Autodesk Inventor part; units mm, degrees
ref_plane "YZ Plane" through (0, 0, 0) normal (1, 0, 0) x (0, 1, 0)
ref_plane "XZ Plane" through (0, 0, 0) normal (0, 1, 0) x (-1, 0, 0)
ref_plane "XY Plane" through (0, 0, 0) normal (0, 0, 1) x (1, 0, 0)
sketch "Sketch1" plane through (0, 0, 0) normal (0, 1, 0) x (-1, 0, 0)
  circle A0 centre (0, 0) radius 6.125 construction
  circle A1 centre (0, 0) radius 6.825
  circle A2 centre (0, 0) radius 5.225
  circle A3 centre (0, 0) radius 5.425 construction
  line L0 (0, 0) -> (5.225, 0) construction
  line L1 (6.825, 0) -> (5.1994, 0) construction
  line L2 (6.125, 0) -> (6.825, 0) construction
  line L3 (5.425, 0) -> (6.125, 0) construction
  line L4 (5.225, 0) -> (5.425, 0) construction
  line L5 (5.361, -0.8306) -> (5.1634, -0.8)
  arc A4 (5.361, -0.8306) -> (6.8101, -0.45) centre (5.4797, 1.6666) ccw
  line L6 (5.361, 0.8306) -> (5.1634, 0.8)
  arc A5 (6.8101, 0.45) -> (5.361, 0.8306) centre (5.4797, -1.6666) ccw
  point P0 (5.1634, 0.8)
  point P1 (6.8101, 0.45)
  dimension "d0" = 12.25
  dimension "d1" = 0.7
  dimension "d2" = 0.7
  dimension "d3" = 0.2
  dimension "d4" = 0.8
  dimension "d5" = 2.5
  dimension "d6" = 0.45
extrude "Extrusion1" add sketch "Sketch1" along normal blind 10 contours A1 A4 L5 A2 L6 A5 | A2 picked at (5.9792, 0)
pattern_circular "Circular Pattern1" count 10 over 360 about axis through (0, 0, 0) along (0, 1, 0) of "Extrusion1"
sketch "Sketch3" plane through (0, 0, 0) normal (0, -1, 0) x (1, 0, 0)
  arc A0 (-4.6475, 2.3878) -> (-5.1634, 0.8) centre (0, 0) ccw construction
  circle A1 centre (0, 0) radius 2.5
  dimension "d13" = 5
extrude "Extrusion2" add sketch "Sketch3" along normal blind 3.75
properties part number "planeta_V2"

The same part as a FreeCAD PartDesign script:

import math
import FreeCAD as App
import Part
import Sketcher
from FreeCAD import Vector

doc = App.newDocument("Part")
body = doc.addObject("PartDesign::Body", "Body")

# Sketch on XZ plane
sketch1 = body.newObject("Sketcher::SketchObject", "Sketch")
sketch1.AttachmentSupport = (doc.getObject("XZ_Plane"), [""])
sketch1.MapMode = "FlatFace"
sketch1.addGeometry([
    Part.ArcOfCircle(Part.Circle(Vector(0, 0, 0), Vector(0, 0, 1), 6.83), math.radians(176.22), math.radians(183.78)),  # 0
    Part.ArcOfCircle(Part.Circle(Vector(-5.48, -1.67, 0), Vector(0, 0, 1), 2.5), math.radians(87), math.radians(122)),  # 1
    Part.LineSegment(Vector(-5.36, 0.83, 0), Vector(-5.16, 0.8, 0)),  # 2
    Part.ArcOfCircle(Part.Circle(Vector(0, 0, 0), Vector(0, 0, 1), 5.22), math.radians(-171), math.radians(171)),  # 3
    Part.LineSegment(Vector(-5.16, -0.8, 0), Vector(-5.36, -0.83, 0)),  # 4
    Part.ArcOfCircle(Part.Circle(Vector(-5.48, 1.67, 0), Vector(0, 0, 1), 2.5), math.radians(-122), math.radians(-87)),  # 5
], False)
sketch1.addConstraint([
    Sketcher.Constraint("Coincident", 0, 1, 1, 2),
    Sketcher.Constraint("Coincident", 1, 1, 2, 1),
    Sketcher.Constraint("Coincident", 2, 2, 3, 2),
    Sketcher.Constraint("Coincident", 3, 1, 4, 1),
    Sketcher.Constraint("Coincident", 4, 2, 5, 2),
    Sketcher.Constraint("Coincident", 5, 1, 0, 2),
    Sketcher.Constraint("Coincident", 0, 3, -1, 1),
    Sketcher.Constraint("Coincident", 3, 3, -1, 1),
    Sketcher.Constraint("Equal", 1, 5),
    Sketcher.Constraint("Symmetric", 1, 3, 5, 3, -1),
    Sketcher.Constraint("Vertical", 2, 2, 3, 1),
    Sketcher.Constraint("Vertical", 1, 1, 4, 2),
    Sketcher.Constraint("Radius", 1, 2.5),
    Sketcher.Constraint("Distance", 2, 0.2),
    Sketcher.Constraint("DistanceY", -1, 1, 2, 2, 0.8),
    Sketcher.Constraint("DistanceY", -1, 1, 0, 1, 0.45),
    Sketcher.Constraint("Radius", 0, 6.825),
    Sketcher.Constraint("Radius", 3, 5.225),
    Sketcher.Constraint("DistanceX", 1, 1, -1, 1, 5.361),
])
pad1 = body.newObject("PartDesign::Pad", "Pad")
pad1.Profile = sketch1
pad1.Length = 10
pad1.Reversed = True
doc.recompute()

polarpattern = body.newObject("PartDesign::PolarPattern", "PolarPattern")
polarpattern.Originals = [pad1]
polarpattern.Axis = (doc.getObject("Y_Axis"), [""])
polarpattern.Angle = 360
polarpattern.Occurrences = 10
body.Tip = polarpattern

# Sketch on XZ plane
sketch2 = body.newObject("Sketcher::SketchObject", "Sketch001")
sketch2.AttachmentSupport = (doc.getObject("XZ_Plane"), [""])
sketch2.MapMode = "FlatFace"
sketch2.addGeometry(Part.Circle(Vector(0, 0, 0), Vector(0, 0, 1), 2.5), False)
sketch2.addConstraint([
    Sketcher.Constraint("Coincident", 0, 3, -1, 1),
    Sketcher.Constraint("Diameter", 0, 5.0),
])
pad2 = body.newObject("PartDesign::Pad", "Pad001")
pad2.Profile = sketch2
pad2.Length = 3.75

doc.recompute()
